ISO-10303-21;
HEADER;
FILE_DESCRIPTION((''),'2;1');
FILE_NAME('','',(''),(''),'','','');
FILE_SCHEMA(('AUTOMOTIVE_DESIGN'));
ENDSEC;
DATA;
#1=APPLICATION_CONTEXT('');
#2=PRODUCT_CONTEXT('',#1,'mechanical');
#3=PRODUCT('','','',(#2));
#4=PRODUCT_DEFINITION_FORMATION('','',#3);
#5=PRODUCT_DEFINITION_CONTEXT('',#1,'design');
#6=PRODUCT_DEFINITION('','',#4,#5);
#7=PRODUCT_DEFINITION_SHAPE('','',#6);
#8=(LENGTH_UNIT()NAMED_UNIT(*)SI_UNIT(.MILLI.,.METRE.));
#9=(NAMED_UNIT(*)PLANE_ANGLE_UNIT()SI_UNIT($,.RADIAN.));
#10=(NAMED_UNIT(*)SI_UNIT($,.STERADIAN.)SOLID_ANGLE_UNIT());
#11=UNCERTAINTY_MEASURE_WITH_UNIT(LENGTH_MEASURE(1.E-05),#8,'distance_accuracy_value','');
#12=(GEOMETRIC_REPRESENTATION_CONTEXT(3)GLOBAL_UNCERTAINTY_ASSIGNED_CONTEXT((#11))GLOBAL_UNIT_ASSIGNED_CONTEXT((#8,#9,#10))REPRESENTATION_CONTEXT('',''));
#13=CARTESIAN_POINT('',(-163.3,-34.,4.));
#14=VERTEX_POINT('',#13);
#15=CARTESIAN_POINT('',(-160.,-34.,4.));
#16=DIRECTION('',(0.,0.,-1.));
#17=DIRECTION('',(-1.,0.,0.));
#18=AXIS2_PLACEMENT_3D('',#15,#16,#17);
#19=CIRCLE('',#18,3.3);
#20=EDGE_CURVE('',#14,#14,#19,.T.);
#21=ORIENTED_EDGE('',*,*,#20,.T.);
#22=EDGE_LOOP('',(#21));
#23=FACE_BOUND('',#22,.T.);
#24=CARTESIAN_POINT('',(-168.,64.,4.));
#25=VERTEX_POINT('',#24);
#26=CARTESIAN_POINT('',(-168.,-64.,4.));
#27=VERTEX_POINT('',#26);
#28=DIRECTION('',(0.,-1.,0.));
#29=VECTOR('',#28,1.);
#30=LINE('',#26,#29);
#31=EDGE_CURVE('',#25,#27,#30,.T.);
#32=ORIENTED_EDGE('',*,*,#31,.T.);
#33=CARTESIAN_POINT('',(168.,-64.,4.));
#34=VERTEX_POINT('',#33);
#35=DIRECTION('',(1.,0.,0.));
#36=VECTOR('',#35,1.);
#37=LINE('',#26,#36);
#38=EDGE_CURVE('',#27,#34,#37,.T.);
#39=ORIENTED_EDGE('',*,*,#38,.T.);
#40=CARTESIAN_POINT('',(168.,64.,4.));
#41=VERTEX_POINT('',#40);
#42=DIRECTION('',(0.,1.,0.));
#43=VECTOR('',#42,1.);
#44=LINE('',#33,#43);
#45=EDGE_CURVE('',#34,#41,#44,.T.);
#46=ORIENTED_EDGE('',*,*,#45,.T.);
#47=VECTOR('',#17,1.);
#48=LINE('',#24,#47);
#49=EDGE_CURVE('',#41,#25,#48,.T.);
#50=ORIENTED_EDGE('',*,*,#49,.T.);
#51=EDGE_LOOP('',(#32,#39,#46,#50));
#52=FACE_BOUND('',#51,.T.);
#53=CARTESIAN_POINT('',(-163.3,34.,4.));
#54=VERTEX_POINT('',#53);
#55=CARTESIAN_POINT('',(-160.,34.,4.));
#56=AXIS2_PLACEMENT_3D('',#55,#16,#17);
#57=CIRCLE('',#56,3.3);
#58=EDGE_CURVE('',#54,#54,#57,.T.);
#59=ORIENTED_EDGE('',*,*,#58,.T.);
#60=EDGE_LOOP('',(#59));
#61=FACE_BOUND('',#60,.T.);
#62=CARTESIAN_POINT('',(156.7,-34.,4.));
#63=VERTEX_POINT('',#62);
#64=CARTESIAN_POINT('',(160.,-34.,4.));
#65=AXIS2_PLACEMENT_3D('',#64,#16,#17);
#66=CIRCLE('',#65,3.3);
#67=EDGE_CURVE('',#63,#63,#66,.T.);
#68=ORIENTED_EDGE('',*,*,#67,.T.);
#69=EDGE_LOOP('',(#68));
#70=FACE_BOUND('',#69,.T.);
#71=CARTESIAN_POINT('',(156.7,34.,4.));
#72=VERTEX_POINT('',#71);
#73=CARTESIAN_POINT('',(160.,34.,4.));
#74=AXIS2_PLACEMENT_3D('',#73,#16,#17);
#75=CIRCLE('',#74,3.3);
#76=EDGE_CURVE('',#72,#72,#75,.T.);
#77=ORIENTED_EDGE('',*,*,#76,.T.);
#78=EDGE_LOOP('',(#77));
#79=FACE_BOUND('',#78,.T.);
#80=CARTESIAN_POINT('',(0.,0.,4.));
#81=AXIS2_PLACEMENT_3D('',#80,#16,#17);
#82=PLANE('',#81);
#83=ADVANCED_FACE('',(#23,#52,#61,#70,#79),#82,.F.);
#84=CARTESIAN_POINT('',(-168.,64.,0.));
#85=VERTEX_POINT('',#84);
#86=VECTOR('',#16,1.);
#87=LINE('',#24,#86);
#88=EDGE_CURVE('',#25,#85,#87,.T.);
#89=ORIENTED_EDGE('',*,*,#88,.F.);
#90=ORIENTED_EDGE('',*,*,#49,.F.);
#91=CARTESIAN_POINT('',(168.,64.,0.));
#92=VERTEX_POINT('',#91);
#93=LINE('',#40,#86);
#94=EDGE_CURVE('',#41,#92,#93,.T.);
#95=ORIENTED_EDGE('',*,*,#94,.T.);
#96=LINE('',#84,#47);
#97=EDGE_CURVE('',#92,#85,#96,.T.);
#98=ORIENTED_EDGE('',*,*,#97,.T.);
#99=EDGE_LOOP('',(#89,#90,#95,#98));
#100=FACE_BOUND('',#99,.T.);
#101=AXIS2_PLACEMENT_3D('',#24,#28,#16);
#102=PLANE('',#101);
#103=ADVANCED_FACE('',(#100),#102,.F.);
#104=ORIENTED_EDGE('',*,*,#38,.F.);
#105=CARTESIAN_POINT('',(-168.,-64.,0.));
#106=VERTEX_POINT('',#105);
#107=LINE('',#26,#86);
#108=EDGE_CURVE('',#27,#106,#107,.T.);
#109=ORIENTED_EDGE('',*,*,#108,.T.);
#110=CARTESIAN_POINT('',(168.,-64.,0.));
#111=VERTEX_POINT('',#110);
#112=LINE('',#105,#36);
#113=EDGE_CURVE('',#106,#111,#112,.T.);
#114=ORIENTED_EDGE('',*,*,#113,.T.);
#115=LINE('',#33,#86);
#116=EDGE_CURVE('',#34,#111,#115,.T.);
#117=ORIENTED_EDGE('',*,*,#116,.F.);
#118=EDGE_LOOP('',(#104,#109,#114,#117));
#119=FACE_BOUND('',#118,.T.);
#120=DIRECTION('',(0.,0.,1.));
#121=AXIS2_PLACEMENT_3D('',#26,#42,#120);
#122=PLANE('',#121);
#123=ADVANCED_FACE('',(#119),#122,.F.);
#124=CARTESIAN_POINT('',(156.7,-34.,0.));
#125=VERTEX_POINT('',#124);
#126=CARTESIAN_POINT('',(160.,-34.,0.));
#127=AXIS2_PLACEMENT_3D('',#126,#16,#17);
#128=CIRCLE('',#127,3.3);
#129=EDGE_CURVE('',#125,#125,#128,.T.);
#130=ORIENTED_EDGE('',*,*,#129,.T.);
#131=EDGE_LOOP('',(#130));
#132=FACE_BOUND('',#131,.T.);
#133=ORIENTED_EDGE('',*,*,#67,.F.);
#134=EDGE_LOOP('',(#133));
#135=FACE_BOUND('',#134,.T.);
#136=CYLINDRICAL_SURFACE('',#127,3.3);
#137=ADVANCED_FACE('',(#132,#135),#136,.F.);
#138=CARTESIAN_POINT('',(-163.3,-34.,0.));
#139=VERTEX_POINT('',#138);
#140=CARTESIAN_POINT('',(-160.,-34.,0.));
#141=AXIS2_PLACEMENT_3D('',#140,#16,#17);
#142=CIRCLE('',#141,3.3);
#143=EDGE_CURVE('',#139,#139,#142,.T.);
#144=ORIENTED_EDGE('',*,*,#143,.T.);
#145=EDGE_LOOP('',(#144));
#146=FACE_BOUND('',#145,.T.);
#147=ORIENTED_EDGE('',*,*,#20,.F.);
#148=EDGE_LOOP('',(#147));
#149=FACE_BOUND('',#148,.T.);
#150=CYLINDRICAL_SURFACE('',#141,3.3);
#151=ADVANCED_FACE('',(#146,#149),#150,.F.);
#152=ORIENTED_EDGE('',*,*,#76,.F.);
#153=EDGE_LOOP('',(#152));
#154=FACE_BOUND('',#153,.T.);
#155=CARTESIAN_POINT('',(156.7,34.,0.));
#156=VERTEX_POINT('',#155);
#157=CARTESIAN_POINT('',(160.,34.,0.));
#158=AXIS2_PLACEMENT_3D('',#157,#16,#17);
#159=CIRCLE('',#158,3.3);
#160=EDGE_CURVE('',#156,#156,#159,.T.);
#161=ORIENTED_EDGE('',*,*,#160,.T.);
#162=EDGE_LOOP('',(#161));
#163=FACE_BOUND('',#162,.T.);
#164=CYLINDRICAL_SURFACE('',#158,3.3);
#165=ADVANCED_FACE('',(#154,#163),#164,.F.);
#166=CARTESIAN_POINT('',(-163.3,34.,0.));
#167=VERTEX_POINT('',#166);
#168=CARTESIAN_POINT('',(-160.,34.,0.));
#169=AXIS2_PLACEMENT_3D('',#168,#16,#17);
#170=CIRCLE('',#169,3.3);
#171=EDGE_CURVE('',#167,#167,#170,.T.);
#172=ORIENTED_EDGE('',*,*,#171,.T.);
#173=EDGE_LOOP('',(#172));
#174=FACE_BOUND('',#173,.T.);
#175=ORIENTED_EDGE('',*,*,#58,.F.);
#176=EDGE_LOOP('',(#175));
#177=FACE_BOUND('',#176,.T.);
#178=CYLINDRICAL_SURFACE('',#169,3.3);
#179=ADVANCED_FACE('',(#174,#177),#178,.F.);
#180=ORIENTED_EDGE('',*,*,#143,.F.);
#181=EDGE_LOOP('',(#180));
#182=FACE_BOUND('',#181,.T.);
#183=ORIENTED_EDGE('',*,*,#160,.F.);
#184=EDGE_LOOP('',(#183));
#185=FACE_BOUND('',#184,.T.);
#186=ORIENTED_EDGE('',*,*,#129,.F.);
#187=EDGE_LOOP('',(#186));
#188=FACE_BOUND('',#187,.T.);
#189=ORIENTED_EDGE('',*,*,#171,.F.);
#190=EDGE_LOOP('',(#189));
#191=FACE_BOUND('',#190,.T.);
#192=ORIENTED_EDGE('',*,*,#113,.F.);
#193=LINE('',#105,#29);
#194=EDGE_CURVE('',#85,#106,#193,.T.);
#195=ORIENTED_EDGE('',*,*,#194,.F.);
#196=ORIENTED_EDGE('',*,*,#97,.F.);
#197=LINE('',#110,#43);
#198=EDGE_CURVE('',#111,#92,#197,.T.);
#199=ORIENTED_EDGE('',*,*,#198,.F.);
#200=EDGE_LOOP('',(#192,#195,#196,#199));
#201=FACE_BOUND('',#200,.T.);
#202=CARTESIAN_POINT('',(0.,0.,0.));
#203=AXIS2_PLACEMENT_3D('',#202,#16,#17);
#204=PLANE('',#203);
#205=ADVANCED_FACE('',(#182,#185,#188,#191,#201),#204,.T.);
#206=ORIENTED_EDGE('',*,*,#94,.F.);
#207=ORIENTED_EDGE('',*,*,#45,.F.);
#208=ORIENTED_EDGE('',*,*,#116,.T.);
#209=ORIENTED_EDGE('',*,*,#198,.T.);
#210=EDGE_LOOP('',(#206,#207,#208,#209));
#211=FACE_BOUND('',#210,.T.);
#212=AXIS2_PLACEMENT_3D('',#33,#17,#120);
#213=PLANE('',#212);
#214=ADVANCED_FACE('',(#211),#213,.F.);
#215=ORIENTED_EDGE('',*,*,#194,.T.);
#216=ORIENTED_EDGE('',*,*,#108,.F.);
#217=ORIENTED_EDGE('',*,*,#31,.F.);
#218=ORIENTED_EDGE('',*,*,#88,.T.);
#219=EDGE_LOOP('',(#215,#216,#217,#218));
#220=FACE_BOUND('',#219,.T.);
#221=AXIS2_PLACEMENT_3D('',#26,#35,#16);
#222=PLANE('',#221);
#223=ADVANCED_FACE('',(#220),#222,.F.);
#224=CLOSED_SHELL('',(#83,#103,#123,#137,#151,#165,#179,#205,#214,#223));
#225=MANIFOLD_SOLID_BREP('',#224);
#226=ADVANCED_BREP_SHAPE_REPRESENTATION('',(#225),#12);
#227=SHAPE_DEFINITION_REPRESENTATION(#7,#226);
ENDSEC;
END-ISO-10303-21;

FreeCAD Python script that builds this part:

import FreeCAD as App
import Part
import Sketcher

V = App.Vector
Q = App.Units.Quantity

doc = App.newDocument("Part")
params = doc.addObject("Spreadsheet::Sheet", "Params")
for row, (alias, value) in enumerate([
    ("sketch1_width", "336 mm"),
    ("sketch1_height", "128 mm"),
    ("pad1_length", "4 mm"),
    ("sketch2_diameter", "6.6 mm"),
    ("hole_diameter", "6.6 mm"),
], start=1):
    params.set(f"A{row}", alias)
    params.set(f"B{row}", "=" + value)
    params.setAlias(f"B{row}", alias)

body = doc.addObject("PartDesign::Body", "Body")

sketch1 = doc.addObject("Sketcher::SketchObject", "Sketch")
body.addObject(sketch1)
sketch1.AttachmentSupport = (doc.XY_Plane, [""])
sketch1.MapMode = "FlatFace"
sketch1.addGeometry([
    Part.LineSegment(V(-168, 64, 0), V(-168, -64, 0)),
    Part.LineSegment(V(-168, -64, 0), V(168, -64, 0)),
    Part.LineSegment(V(168, -64, 0), V(168, 64, 0)),
    Part.LineSegment(V(168, 64, 0), V(-168, 64, 0)),
], False)
sketch1.addConstraint([
    Sketcher.Constraint("Coincident", 0, 2, 1, 1),
    Sketcher.Constraint("Coincident", 1, 2, 2, 1),
    Sketcher.Constraint("Coincident", 2, 2, 3, 1),
    Sketcher.Constraint("Coincident", 3, 2, 0, 1),
    Sketcher.Constraint("Vertical", 0),
    Sketcher.Constraint("Horizontal", 1),
    Sketcher.Constraint("Vertical", 2),
    Sketcher.Constraint("Horizontal", 3),
    Sketcher.Constraint("Symmetric", 0, 2, 2, 2, -1, 1),
    Sketcher.Constraint("DistanceX", 1, 1, 1, 2, Q("336 mm")),
    Sketcher.Constraint("DistanceY", 0, 2, 0, 1, Q("128 mm")),
])
sketch1.setExpression("Constraints[9]", "Params.sketch1_width")
sketch1.setExpression("Constraints[10]", "Params.sketch1_height")
pad1 = doc.addObject("PartDesign::Pad", "Pad")
body.addObject(pad1)
pad1.Profile = sketch1
pad1.setExpression("Length", "Params.pad1_length")

sketch2 = doc.addObject("Sketcher::SketchObject", "Sketch001")
body.addObject(sketch2)
sketch2.AttachmentSupport = (doc.XY_Plane, [""])
sketch2.MapMode = "FlatFace"
sketch2.addGeometry([
    Part.Circle(V(-160, 34, 0), V(0, 0, 1), 3.3),
    Part.Circle(V(-160, -34, 0), V(0, 0, 1), 3.3),
    Part.Circle(V(160, -34, 0), V(0, 0, 1), 3.3),
    Part.Circle(V(160, 34, 0), V(0, 0, 1), 3.3),
], False)
sketch2.addConstraint([
    Sketcher.Constraint("Equal", 0, 1),
    Sketcher.Constraint("Equal", 1, 2),
    Sketcher.Constraint("Equal", 2, 3),
    Sketcher.Constraint("Symmetric", 0, 3, 2, 3, -1, 1),
    Sketcher.Constraint("Symmetric", 1, 3, 3, 3, -1, 1),
    Sketcher.Constraint("Symmetric", 1, 3, 2, 3, -2),
    Sketcher.Constraint("Diameter", 0, Q("6.6 mm")),
    Sketcher.Constraint("DistanceX", 0, 3, -1, 1, Q("160 mm")),
    Sketcher.Constraint("DistanceY", -1, 1, 0, 3, Q("34 mm")),
])
sketch2.setExpression("Constraints[6]", "Params.sketch2_diameter")
doc.recompute()
hole = doc.addObject("PartDesign::Hole", "Hole")
body.addObject(hole)
hole.Profile = sketch2
hole.ThreadType = "None"
hole.setExpression("Diameter", "Params.hole_diameter")
hole.DepthType = "ThroughAll"
hole.Reversed = True

doc.recompute()
